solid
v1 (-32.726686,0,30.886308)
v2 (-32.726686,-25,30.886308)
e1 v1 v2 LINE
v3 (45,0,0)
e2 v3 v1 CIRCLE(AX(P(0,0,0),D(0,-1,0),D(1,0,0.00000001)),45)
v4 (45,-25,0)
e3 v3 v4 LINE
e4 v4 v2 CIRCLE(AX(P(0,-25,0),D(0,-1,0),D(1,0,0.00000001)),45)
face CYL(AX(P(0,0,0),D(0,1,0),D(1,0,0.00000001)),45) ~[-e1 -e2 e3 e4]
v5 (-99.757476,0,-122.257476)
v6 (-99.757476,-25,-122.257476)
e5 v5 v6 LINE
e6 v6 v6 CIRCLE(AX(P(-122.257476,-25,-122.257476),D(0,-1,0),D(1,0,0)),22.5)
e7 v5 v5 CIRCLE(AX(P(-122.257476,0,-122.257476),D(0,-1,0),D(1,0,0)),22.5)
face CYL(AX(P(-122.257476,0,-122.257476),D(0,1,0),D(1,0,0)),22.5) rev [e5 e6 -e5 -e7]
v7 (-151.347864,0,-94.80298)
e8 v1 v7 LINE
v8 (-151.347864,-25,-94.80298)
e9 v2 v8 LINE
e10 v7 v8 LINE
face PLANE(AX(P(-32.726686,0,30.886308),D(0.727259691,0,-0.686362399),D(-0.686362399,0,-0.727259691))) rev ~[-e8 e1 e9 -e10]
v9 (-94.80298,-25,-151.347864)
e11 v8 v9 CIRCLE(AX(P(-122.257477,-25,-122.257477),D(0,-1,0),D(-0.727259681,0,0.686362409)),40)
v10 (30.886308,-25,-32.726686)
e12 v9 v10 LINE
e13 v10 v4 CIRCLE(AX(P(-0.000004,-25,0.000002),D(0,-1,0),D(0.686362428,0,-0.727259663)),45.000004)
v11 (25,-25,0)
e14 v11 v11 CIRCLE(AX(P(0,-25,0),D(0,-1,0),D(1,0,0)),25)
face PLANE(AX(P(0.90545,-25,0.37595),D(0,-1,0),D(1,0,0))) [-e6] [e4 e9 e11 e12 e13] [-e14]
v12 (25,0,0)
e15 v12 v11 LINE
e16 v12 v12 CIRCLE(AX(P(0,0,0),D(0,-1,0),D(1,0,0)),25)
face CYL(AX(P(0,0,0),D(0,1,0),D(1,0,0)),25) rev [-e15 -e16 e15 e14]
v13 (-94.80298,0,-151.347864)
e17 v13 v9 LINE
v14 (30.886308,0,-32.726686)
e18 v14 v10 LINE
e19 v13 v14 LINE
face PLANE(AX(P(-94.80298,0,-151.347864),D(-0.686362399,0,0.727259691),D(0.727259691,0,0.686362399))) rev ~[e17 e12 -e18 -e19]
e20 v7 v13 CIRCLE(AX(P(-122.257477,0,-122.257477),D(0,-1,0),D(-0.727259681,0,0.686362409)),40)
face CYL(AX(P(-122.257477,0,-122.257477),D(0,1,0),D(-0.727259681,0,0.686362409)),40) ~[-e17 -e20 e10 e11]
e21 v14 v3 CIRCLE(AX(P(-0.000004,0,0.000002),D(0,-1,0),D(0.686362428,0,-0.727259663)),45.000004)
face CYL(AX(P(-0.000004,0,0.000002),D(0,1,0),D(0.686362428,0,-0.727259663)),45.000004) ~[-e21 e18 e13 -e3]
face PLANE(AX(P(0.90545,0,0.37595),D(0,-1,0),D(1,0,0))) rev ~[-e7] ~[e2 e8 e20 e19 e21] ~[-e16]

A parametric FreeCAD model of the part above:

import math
import FreeCAD as App
import Part
import Sketcher
from FreeCAD import Vector

doc = App.newDocument("Part")
body = doc.addObject("PartDesign::Body", "Body")

sketch1 = doc.addObject("Sketcher::SketchObject", "Sketch")
body.addObject(sketch1)
sketch1.AttachmentSupport = (doc.XZ_Plane, [""])
sketch1.MapMode = "FlatFace"
sketch1.addGeometry(Part.ArcOfCircle(Part.Circle(Vector(0, 0, 0), Vector(0, 0, 1), 45), math.radians(-47), math.radians(0)), False)
sketch1.addGeometry(Part.ArcOfCircle(Part.Circle(Vector(0, 0, 0), Vector(0, 0, 1), 45), math.radians(0), math.radians(137)), False)
sketch1.addGeometry(Part.LineSegment(Vector(-33, 31, 0), Vector(-151, -95, 0)), False)
sketch1.addGeometry(Part.ArcOfCircle(Part.Circle(Vector(-122, -122, 0), Vector(0, 0, 1), 40), math.radians(137), math.radians(313)), False)
sketch1.addGeometry(Part.LineSegment(Vector(-95, -151, 0), Vector(31, -33, 0)), False)
sketch1.addGeometry(Part.Circle(Vector(-122, -122, 0), Vector(0, 0, 1), 22), False)
sketch1.addGeometry(Part.Circle(Vector(0, 0, 0), Vector(0, 0, 1), 25), False)
sketch1.addConstraint(Sketcher.Constraint("Tangent", 0, 2, 1, 1))
sketch1.addConstraint(Sketcher.Constraint("Tangent", 1, 2, 2, 1))
sketch1.addConstraint(Sketcher.Constraint("Tangent", 2, 2, 3, 1))
sketch1.addConstraint(Sketcher.Constraint("Tangent", 3, 2, 4, 1))
sketch1.addConstraint(Sketcher.Constraint("Tangent", 4, 2, 0, 1))
sketch1.addConstraint(Sketcher.Constraint("Coincident", 0, 3, -1, 1))
sketch1.addConstraint(Sketcher.Constraint("Coincident", 6, 3, -1, 1))
sketch1.addConstraint(Sketcher.Constraint("Coincident", 5, 3, 3, 3))
sketch1.addConstraint(Sketcher.Constraint("PointOnObject", 0, 2, -1))
sketch1.addConstraint(Sketcher.Constraint("Equal", 2, 4))
sketch1.addConstraint(Sketcher.Constraint("Diameter", 5, 45.0))
sketch1.addConstraint(Sketcher.Constraint("Diameter", 6, 50.0))
sketch1.addConstraint(Sketcher.Constraint("Radius", 1, 45.0))
sketch1.addConstraint(Sketcher.Constraint("Radius", 3, 40.0))
sketch1.addConstraint(Sketcher.Constraint("Distance", 2, 172.825869))
sketch1.addConstraint(Sketcher.Constraint("DistanceY", 2, 2, -1, 1, 94.80298))
pad1 = doc.addObject("PartDesign::Pad", "Pad")
body.addObject(pad1)
pad1.Profile = sketch1
pad1.Length = 25

doc.recompute()
